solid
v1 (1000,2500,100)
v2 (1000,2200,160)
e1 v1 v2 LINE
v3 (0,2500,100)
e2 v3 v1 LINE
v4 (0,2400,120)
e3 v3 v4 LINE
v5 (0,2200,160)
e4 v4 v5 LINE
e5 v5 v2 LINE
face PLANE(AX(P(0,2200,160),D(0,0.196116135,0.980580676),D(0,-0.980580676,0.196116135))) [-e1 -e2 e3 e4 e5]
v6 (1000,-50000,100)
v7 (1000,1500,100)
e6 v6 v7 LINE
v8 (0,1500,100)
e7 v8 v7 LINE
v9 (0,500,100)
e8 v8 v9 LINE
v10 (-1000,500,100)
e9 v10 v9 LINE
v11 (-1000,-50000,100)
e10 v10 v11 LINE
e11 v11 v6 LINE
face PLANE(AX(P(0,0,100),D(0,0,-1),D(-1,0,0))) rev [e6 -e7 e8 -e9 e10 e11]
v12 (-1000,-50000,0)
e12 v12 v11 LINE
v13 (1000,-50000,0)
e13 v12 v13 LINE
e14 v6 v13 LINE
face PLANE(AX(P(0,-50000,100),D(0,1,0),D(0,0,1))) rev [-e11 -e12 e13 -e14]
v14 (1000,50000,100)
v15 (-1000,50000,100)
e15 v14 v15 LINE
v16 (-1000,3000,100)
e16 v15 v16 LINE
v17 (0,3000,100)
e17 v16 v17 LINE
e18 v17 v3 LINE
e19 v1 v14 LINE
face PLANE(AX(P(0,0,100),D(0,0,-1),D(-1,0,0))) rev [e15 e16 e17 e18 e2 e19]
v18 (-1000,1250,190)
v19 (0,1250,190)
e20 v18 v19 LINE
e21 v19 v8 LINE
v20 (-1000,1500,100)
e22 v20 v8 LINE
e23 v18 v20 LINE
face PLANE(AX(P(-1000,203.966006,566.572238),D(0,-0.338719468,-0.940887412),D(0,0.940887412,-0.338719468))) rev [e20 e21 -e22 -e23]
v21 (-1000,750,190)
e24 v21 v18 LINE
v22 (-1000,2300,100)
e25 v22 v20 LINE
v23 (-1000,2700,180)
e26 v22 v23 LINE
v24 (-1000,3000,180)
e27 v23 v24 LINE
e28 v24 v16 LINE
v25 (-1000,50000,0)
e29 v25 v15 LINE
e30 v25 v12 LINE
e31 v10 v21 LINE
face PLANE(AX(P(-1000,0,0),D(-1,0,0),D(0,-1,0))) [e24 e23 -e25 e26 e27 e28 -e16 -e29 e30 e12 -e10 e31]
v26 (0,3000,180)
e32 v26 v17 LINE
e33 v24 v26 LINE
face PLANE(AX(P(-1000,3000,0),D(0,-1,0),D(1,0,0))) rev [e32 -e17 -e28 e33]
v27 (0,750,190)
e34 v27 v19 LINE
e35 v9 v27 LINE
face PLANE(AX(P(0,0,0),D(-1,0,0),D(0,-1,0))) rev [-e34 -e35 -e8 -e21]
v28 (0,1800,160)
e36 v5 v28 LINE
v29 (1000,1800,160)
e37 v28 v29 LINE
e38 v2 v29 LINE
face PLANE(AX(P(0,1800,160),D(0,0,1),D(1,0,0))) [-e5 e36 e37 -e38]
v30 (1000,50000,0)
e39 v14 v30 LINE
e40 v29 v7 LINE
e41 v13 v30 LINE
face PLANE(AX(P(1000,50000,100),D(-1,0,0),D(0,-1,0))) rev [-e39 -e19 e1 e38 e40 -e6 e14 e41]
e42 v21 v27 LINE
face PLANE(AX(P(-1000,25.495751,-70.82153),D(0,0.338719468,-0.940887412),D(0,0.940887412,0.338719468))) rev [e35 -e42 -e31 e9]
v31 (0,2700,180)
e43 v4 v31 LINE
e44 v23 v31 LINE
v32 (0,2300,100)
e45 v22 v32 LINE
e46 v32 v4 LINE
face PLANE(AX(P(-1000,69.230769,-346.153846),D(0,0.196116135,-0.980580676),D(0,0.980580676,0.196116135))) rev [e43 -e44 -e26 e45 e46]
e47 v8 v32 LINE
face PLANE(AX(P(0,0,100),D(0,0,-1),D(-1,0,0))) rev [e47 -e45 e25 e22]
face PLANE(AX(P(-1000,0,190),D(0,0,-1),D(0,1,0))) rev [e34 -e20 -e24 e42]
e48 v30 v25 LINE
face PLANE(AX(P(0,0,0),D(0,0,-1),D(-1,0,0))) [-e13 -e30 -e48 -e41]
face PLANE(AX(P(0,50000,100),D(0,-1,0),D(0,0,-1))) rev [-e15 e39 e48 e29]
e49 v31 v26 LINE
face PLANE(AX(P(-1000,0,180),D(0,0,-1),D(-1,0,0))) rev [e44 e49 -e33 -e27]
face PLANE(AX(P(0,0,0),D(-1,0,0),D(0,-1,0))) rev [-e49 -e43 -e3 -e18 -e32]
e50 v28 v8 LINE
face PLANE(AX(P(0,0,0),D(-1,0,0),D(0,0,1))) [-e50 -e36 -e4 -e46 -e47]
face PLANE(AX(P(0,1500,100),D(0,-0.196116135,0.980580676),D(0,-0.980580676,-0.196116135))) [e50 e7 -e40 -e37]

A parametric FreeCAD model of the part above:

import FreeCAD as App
import Part
import Sketcher


def add_polygon(sketch, points):
    """Adds a closed chain of lines whose ends are joined by coincident constraints."""
    first, n = sketch.GeometryCount, len(points)
    for a, b in zip(points, points[1:] + points[:1]):
        sketch.addGeometry(Part.LineSegment(App.Vector(*a, 0), App.Vector(*b, 0)), False)
    for i in range(n):
        sketch.addConstraint(Sketcher.Constraint("Coincident", first + i, 2, first + (i + 1) % n, 1))

doc = App.newDocument("Part")
body = doc.addObject("PartDesign::Body", "Body")

sketch1 = doc.addObject("Sketcher::SketchObject", "Sketch")
body.addObject(sketch1)
sketch1.AttachmentSupport = (doc.XY_Plane, [""])
sketch1.MapMode = "FlatFace"
add_polygon(sketch1, [(0, 50000), (0, -50000), (1000, -50000), (1000, 50000)])
sketch1.addConstraint([
    Sketcher.Constraint("Vertical", 0),
    Sketcher.Constraint("Horizontal", 1),
    Sketcher.Constraint("Vertical", 2),
    Sketcher.Constraint("Horizontal", 3),
    Sketcher.Constraint("Symmetric", 0, 2, 3, 2, -1, 1),
    Sketcher.Constraint("DistanceX", 1, 1, 1, 2, 1000.0),
    Sketcher.Constraint("DistanceY", 0, 2, 0, 1, 100000.0),
])
pad1 = doc.addObject("PartDesign::Pad", "Pad")
body.addObject(pad1)
pad1.Profile = sketch1
pad1.Length = 100

sketch2 = doc.addObject("Sketcher::SketchObject", "Sketch001")
body.addObject(sketch2)
sketch2.AttachmentSupport = (doc.YZ_Plane, [""])
sketch2.MapMode = "FlatFace"
add_polygon(sketch2, [(-50000, 100), (500, 100), (750, 190), (1250, 190), (1500, 100), (2300, 100), (2700, 180), (3000, 180), (3000, 100), (50000, 100), (50000, 0), (-50000, 0)])
sketch2.addConstraint([
    Sketcher.Constraint("Horizontal", 0),
    Sketcher.Constraint("Horizontal", 2),
    Sketcher.Constraint("Horizontal", 4),
    Sketcher.Constraint("Horizontal", 6),
    Sketcher.Constraint("Vertical", 7),
    Sketcher.Constraint("Horizontal", 8),
    Sketcher.Constraint("Vertical", 9),
    Sketcher.Constraint("Horizontal", 10),
    Sketcher.Constraint("Vertical", 11),
    Sketcher.Constraint("Symmetric", 9, 2, 10, 2, -1, 1),
    Sketcher.Constraint("Horizontal", 0, 2, 3, 2),
    Sketcher.Constraint("Horizontal", 4, 2, 7, 2),
    Sketcher.Constraint("Equal", 1, 3),
    Sketcher.Constraint("DistanceX", 0, 1, 0, 2, 50500.0),
    Sketcher.Constraint("DistanceX", 2, 1, 2, 2, 500.0),
    Sketcher.Constraint("DistanceX", 4, 1, 4, 2, 800.0),
    Sketcher.Constraint("DistanceX", 6, 1, 6, 2, 300.0),
    Sketcher.Constraint("DistanceX", 8, 1, 8, 2, 47000.0),
    Sketcher.Constraint("DistanceX", 10, 2, 10, 1, 100000.0),
    Sketcher.Constraint("DistanceY", 7, 2, 7, 1, 80.0),
    Sketcher.Constraint("DistanceY", 9, 2, 9, 1, 100.0),
    Sketcher.Constraint("DistanceX", -1, 1, 1, 2, 750.0),
    Sketcher.Constraint("DistanceY", -1, 1, 1, 2, 190.0),
])
pad2 = doc.addObject("PartDesign::Pad", "Pad001")
body.addObject(pad2)
pad2.Profile = sketch2
pad2.Length = 1000
pad2.Reversed = True

sketch3 = doc.addObject("Sketcher::SketchObject", "Sketch002")
body.addObject(sketch3)
sketch3.AttachmentSupport = (doc.YZ_Plane, [""])
sketch3.MapMode = "FlatFace"
sketch3.AttachmentOffset = App.Placement(App.Vector(0, 0, 1000), App.Rotation())
add_polygon(sketch3, [(1800, 160), (1500, 100), (2500, 100), (2200, 160)])
sketch3.addConstraint([
    Sketcher.Constraint("Horizontal", 1),
    Sketcher.Constraint("Horizontal", 3),
    Sketcher.Constraint("Equal", 0, 2),
    Sketcher.Constraint("DistanceX", 1, 1, 1, 2, 1000.0),
    Sketcher.Constraint("DistanceX", 3, 2, 3, 1, 400.0),
    Sketcher.Constraint("DistanceX", -1, 1, 0, 2, 1500.0),
    Sketcher.Constraint("DistanceY", -1, 1, 0, 2, 100.0),
    Sketcher.Constraint("DistanceY", -1, 1, 2, 2, 160.0),
])
pad3 = doc.addObject("PartDesign::Pad", "Pad002")
body.addObject(pad3)
pad3.Profile = sketch3
pad3.Length = 1000
pad3.Reversed = True

doc.recompute()
